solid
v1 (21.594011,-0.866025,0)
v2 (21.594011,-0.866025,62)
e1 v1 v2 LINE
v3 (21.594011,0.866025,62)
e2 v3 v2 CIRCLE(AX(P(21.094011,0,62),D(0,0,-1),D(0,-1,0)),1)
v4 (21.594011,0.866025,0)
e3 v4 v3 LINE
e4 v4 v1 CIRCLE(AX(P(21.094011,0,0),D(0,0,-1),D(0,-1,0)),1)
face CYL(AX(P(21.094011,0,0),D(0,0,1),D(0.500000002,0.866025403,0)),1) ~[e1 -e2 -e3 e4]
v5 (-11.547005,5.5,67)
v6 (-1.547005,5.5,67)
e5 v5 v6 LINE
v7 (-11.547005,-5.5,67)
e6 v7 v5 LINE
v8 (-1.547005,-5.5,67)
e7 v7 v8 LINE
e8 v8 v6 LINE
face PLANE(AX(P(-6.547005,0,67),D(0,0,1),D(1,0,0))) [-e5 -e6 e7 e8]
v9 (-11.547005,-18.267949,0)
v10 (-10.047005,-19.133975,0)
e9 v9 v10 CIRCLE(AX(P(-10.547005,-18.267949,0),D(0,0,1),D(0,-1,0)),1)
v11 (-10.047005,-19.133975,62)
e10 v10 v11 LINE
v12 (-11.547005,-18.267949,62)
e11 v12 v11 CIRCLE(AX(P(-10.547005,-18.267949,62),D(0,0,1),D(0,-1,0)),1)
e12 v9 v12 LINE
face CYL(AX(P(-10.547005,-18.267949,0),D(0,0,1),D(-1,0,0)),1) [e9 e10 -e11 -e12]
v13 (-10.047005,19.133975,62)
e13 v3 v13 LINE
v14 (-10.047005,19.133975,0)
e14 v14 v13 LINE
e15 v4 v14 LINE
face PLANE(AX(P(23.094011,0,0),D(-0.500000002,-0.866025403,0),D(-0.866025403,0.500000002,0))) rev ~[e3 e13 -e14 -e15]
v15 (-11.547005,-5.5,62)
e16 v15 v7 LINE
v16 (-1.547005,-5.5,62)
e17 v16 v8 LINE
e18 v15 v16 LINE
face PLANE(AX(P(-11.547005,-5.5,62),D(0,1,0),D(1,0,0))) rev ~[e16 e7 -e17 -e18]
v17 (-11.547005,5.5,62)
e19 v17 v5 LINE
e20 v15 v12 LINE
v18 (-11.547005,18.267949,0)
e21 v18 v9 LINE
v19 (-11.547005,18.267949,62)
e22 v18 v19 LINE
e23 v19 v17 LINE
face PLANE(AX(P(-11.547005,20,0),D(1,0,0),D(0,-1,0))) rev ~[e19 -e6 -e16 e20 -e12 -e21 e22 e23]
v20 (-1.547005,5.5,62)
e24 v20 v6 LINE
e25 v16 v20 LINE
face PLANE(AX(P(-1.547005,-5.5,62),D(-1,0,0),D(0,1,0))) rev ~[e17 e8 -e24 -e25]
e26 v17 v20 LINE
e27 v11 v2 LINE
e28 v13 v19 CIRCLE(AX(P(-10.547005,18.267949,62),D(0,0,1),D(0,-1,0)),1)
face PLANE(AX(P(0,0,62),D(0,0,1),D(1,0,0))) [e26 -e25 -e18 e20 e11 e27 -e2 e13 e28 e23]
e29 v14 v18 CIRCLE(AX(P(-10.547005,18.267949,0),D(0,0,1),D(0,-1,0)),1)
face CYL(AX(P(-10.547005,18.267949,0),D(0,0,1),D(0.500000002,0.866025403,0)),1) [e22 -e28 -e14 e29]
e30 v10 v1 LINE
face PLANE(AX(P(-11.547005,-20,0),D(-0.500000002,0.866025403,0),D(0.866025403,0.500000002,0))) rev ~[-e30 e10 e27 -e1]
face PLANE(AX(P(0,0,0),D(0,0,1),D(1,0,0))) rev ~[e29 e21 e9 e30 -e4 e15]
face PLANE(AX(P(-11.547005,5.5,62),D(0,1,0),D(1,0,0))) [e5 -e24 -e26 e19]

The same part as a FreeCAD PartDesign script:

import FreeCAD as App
import Part
import Sketcher
from FreeCAD import Vector
Q = App.Units.Quantity


def edges_at(feature, points):
    """Names of the edges that pass closest to the given points."""
    edges = feature.Shape.Edges
    near = lambda p: min(range(len(edges)), key=lambda i: edges[i].distToShape(Part.Vertex(*p))[0])
    return sorted({f"Edge{near(p) + 1}" for p in points})

doc = App.newDocument("Part")
body = doc.addObject("PartDesign::Body", "Body")

# Sketch on XY plane
sketch1 = body.newObject("Sketcher::SketchObject", "Sketch")
sketch1.AttachmentSupport = (doc.getObject("XY_Plane"), [""])
sketch1.MapMode = "FlatFace"
sketch1.addGeometry([
    Part.LineSegment(Vector(23, 0, 0), Vector(-12, 20, 0)),
    Part.LineSegment(Vector(-12, 20, 0), Vector(-12, -20, 0)),
    Part.LineSegment(Vector(-12, -20, 0), Vector(23, 0, 0)),
], False)
sketch1.addConstraint([
    Sketcher.Constraint("Coincident", 0, 2, 1, 1),
    Sketcher.Constraint("Coincident", 1, 2, 2, 1),
    Sketcher.Constraint("Coincident", 2, 2, 0, 1),
    Sketcher.Constraint("Vertical", 1),
    Sketcher.Constraint("PointOnObject", 2, 2, -1),
    Sketcher.Constraint("Equal", 0, 2),
    Sketcher.Constraint("DistanceY", 1, 2, 1, 1, Q("40 mm")),
    Sketcher.Constraint("Angle", 0, Q("150 deg")),
    Sketcher.Constraint("DistanceX", -1, 1, 2, 2, Q("23.094011 mm")),
])
pad1 = body.newObject("PartDesign::Pad", "Pad")
pad1.Profile = sketch1
pad1.Length = 62
doc.recompute()

fillet = body.newObject("PartDesign::Fillet", "Fillet")
fillet.Base = (pad1, edges_at(pad1, [(-11.547, 20, 31), (23.094, 0, 31), (-11.547, -20, 31)]))
fillet.Radius = 1

# Sketch on XY plane
sketch2 = body.newObject("Sketcher::SketchObject", "Sketch001")
sketch2.AttachmentSupport = (doc.getObject("XY_Plane"), [""])
sketch2.MapMode = "FlatFace"
sketch2.AttachmentOffset = App.Placement(Vector(0, 0, 62), App.Rotation())
sketch2.addGeometry([
    Part.LineSegment(Vector(-12, 6, 0), Vector(-12, -6, 0)),
    Part.LineSegment(Vector(-12, -6, 0), Vector(-2, -6, 0)),
    Part.LineSegment(Vector(-2, -6, 0), Vector(-2, 6, 0)),
    Part.LineSegment(Vector(-2, 6, 0), Vector(-12, 6, 0)),
], False)
sketch2.addConstraint([
    Sketcher.Constraint("Coincident", 0, 2, 1, 1),
    Sketcher.Constraint("Coincident", 1, 2, 2, 1),
    Sketcher.Constraint("Coincident", 2, 2, 3, 1),
    Sketcher.Constraint("Coincident", 3, 2, 0, 1),
    Sketcher.Constraint("Vertical", 0),
    Sketcher.Constraint("Horizontal", 1),
    Sketcher.Constraint("Vertical", 2),
    Sketcher.Constraint("Horizontal", 3),
    Sketcher.Constraint("DistanceX", 1, 1, 1, 2, Q("10 mm")),
    Sketcher.Constraint("DistanceY", 0, 2, 0, 1, Q("11 mm")),
    Sketcher.Constraint("DistanceY", 0, 2, -1, 1, Q("5.5 mm")),
    Sketcher.Constraint("DistanceX", 0, 2, -1, 1, Q("11.547005 mm")),
])
pad2 = body.newObject("PartDesign::Pad", "Pad001")
pad2.Profile = sketch2
pad2.Length = 5

doc.recompute()
